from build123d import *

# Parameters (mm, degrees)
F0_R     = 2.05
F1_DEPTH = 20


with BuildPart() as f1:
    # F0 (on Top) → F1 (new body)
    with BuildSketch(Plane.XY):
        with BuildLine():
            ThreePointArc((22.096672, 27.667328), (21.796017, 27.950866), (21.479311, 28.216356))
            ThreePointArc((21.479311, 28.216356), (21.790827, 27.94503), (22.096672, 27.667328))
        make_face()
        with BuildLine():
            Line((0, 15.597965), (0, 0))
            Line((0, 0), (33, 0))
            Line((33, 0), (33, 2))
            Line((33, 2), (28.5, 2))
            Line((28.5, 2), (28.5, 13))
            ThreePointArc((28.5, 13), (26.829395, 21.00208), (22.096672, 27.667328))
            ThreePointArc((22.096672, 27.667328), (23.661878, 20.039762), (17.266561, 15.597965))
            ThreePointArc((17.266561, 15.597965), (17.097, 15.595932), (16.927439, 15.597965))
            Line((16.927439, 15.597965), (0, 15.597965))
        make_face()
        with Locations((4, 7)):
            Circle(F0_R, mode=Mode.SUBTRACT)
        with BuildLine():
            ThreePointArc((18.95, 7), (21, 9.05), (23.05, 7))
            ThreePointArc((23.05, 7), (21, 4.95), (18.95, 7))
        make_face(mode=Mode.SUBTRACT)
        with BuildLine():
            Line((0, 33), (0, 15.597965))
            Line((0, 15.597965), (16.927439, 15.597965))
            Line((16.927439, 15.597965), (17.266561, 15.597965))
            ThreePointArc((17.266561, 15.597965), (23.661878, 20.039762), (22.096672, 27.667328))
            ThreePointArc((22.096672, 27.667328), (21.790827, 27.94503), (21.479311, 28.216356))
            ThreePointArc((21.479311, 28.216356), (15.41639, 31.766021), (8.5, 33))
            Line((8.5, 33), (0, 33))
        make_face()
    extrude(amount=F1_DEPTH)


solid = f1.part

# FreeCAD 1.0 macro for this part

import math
import FreeCAD as App
import Part
import Sketcher
from FreeCAD import Vector
Q = App.Units.Quantity

doc = App.newDocument("Part")
body = doc.addObject("PartDesign::Body", "Body")

# Sketch on XY plane
sketch1 = doc.addObject("Sketcher::SketchObject", "Sketch")
body.addObject(sketch1)
sketch1.AttachmentSupport = (doc.XY_Plane, [""])
sketch1.MapMode = "FlatFace"
sketch1.addGeometry([
    Part.ArcOfCircle(Part.Circle(Vector(17.096991, 22.666992, 0), Vector(0, 0, 1), 7.07108), math.radians(45.003757), math.radians(51.701935)),  # 0
    Part.ArcOfCircle(Part.Circle(Vector(8.499999, 12.999997, 0), Vector(0, 0, 1), 20.000003), math.radians(49.536349), math.radians(89.999998)),  # 1
    Part.LineSegment(Vector(8.5, 33, 0), Vector(0, 33, 0)),  # 2
    Part.LineSegment(Vector(0, 33, 0), Vector(0, 0, 0)),  # 3
    Part.LineSegment(Vector(0, 0, 0), Vector(33, 0, 0)),  # 4
    Part.LineSegment(Vector(33, 0, 0), Vector(33, 2, 0)),  # 5
    Part.LineSegment(Vector(33, 2, 0), Vector(28.5, 2, 0)),  # 6
    Part.LineSegment(Vector(28.5, 2, 0), Vector(28.5, 13, 0)),  # 7
    Part.ArcOfCircle(Part.Circle(Vector(8.500001, 13.000001, 0), Vector(0, 0, 1), 19.999999), math.radians(-0.000002), math.radians(47.16936)),  # 8
    Part.LineSegment(Vector(16.927439, 15.597965, 0), Vector(17.266561, 15.597965, 0)),  # 9
    Part.ArcOfCircle(Part.Circle(Vector(17.097, 22.668009, 0), Vector(0, 0, 1), 7.072077), math.radians(-91.373862), math.radians(-88.626138)),  # 10
    Part.Circle(Vector(4, 7, 0), Vector(0, 0, 1), 2.05),  # 11
    Part.Circle(Vector(21, 7, 0), Vector(0, 0, 1), 2.05),  # 12
], False)
sketch1.addConstraint([
    Sketcher.Constraint("Coincident", 0, 2, 1, 1),
    Sketcher.Constraint("Coincident", 1, 2, 2, 1),
    Sketcher.Constraint("Coincident", 2, 2, 3, 1),
    Sketcher.Constraint("Coincident", 3, 2, 4, 1),
    Sketcher.Constraint("Coincident", 4, 2, 5, 1),
    Sketcher.Constraint("Coincident", 5, 2, 6, 1),
    Sketcher.Constraint("Coincident", 6, 2, 7, 1),
    Sketcher.Constraint("Coincident", 7, 2, 8, 1),
    Sketcher.Constraint("Coincident", 8, 2, 0, 1),
    Sketcher.Constraint("Coincident", 9, 1, 10, 1),
    Sketcher.Constraint("Coincident", 10, 2, 9, 2),
    Sketcher.Constraint("Horizontal", 2),
    Sketcher.Constraint("Vertical", 3),
    Sketcher.Constraint("Horizontal", 4),
    Sketcher.Constraint("Vertical", 5),
    Sketcher.Constraint("Horizontal", 6),
    Sketcher.Constraint("Vertical", 7),
    Sketcher.Constraint("Horizontal", 9),
    Sketcher.Constraint("Coincident", 3, 2, -1, 1),
    Sketcher.Constraint("Coincident", 8, 3, 1, 3),
    Sketcher.Constraint("Radius", 8, Q("19.999999 mm")),
    Sketcher.Constraint("Diameter", 11, Q("4.1 mm")),
    Sketcher.Constraint("Diameter", 12, Q("4.1 mm")),
    Sketcher.Constraint("DistanceX", 4, 1, 4, 2, Q("33 mm")),
    Sketcher.Constraint("DistanceY", 3, 2, 3, 1, Q("33 mm")),
    Sketcher.Constraint("DistanceY", 5, 1, 5, 2, Q("2 mm")),
    Sketcher.Constraint("DistanceY", 7, 1, 7, 2, Q("11 mm")),
    Sketcher.Constraint("DistanceX", 2, 2, 2, 1, Q("8.5 mm")),
    Sketcher.Constraint("DistanceX", 6, 2, 6, 1, Q("4.5 mm")),
    Sketcher.Constraint("DistanceY", -1, 1, 8, 3, Q("13.000001 mm")),
    Sketcher.Constraint("DistanceX", -1, 1, 11, 3, Q("4 mm")),
    Sketcher.Constraint("DistanceY", -1, 1, 11, 3, Q("7 mm")),
    Sketcher.Constraint("DistanceX", -1, 1, 12, 3, Q("21 mm")),
    Sketcher.Constraint("DistanceY", -1, 1, 12, 3, Q("7 mm")),
    Sketcher.Constraint("Radius", 0, Q("7.07108 mm")),
    Sketcher.Constraint("DistanceX", -1, 1, 10, 3, Q("17.097 mm")),
    Sketcher.Constraint("Radius", 10, Q("7.072077 mm")),
    Sketcher.Constraint("DistanceX", 9, 1, 9, 2, Q("0.339122 mm")),
    Sketcher.Constraint("DistanceX", -1, 1, 0, 3, Q("17.096991 mm")),
    Sketcher.Constraint("DistanceY", -1, 1, 0, 3, Q("22.666992 mm")),
    Sketcher.Constraint("DistanceY", -1, 1, 10, 3, Q("22.668009 mm")),
])
pad1 = doc.addObject("PartDesign::Pad", "Pad")
body.addObject(pad1)
pad1.Profile = sketch1
pad1.Length = 20

doc.recompute()
